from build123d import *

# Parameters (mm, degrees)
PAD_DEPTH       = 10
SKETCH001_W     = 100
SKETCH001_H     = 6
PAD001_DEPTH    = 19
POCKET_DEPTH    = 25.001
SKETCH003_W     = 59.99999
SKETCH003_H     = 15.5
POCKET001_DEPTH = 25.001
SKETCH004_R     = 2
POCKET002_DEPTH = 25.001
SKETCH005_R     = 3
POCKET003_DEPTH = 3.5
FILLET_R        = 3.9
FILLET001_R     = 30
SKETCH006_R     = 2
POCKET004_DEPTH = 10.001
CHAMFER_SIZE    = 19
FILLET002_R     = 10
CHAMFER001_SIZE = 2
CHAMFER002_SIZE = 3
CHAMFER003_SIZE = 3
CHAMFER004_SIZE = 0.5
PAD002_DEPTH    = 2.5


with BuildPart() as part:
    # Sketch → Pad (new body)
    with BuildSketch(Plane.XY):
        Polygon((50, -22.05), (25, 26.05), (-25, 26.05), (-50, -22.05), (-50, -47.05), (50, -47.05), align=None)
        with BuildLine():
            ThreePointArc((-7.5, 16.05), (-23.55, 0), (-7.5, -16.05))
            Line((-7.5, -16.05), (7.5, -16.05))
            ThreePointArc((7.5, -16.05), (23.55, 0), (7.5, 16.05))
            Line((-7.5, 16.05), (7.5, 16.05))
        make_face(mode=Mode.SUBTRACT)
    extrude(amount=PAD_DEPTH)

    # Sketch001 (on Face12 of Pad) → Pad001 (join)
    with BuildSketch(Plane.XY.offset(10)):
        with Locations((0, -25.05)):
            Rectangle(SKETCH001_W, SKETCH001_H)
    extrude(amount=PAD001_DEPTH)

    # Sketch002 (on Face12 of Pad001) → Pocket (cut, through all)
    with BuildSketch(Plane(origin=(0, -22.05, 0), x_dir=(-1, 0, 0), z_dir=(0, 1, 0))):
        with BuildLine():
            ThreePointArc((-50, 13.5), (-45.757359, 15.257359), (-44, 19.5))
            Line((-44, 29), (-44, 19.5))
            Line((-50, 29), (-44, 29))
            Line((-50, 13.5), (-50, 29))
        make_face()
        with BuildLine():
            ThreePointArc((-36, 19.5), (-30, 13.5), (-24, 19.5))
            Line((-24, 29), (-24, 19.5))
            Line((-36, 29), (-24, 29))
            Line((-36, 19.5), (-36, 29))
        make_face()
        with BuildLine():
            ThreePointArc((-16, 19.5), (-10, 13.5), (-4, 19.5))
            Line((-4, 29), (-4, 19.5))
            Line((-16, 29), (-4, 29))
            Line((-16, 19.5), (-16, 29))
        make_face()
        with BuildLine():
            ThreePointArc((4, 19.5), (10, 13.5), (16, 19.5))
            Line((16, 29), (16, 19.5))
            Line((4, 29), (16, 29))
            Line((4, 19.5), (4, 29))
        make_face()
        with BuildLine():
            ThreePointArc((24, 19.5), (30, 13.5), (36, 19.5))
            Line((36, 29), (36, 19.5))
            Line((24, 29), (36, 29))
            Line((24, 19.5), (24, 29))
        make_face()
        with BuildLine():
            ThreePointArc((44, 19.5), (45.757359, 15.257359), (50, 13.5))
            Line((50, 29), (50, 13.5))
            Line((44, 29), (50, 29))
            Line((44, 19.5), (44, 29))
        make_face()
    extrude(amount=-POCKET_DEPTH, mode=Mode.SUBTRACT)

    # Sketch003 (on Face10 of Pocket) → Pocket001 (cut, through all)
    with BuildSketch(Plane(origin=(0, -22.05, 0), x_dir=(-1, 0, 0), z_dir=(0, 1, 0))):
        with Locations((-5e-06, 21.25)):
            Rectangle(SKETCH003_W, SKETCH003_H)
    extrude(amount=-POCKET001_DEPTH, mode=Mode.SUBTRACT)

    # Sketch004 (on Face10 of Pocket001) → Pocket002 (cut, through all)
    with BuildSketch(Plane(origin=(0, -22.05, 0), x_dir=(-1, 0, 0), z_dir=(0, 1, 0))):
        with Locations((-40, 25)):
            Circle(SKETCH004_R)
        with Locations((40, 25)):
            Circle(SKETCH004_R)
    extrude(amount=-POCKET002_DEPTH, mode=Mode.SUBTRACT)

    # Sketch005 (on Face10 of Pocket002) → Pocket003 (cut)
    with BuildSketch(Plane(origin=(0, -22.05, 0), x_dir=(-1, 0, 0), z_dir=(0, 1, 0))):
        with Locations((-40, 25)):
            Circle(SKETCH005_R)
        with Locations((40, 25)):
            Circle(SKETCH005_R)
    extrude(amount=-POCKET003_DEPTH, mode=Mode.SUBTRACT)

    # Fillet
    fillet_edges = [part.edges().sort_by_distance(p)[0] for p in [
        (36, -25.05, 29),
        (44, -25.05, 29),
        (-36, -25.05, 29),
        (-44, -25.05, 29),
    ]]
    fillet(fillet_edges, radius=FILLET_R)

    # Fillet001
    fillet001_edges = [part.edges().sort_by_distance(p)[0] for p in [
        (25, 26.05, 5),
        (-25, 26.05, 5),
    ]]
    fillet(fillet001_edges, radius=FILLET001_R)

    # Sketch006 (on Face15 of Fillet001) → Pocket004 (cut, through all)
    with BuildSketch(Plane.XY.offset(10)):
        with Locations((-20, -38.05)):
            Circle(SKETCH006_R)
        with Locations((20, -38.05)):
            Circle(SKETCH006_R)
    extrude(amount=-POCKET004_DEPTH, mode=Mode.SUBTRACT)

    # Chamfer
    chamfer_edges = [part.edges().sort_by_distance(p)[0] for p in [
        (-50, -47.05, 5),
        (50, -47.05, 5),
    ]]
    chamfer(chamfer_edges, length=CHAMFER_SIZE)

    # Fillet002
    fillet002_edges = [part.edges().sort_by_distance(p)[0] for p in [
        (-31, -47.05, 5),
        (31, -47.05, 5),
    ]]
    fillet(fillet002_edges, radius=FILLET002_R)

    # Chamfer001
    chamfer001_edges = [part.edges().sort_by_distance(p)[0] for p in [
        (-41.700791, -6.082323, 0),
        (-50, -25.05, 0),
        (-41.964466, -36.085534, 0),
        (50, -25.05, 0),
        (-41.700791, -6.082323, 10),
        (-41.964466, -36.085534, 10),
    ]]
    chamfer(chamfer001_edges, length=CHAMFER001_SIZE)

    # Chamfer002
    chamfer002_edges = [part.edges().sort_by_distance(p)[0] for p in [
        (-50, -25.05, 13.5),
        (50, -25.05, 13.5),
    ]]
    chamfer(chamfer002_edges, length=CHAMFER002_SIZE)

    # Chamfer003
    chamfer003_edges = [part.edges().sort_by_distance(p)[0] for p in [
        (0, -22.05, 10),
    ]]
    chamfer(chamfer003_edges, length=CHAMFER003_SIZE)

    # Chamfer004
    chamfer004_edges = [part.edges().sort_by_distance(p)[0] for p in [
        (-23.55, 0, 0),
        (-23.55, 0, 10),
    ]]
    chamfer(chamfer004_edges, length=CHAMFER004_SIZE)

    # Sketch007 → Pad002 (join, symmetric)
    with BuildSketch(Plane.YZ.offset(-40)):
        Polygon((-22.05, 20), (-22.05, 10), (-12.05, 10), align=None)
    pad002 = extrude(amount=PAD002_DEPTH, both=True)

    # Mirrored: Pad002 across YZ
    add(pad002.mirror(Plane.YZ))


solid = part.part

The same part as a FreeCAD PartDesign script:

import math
import FreeCAD as App
import Part
import Sketcher

V = App.Vector


def edges_at(feature, points):
    """Names of the edges that pass closest to the given points."""
    edges = feature.Shape.Edges
    near = lambda p: min(range(len(edges)), key=lambda i: edges[i].distToShape(Part.Vertex(*p))[0])
    return sorted({f"Edge{near(p) + 1}" for p in points})

doc = App.newDocument("Part")
body = doc.addObject("PartDesign::Body", "Body")

# Sketch on XY plane
sketch1 = body.newObject("Sketcher::SketchObject", "Sketch")
sketch1.AttachmentSupport = (doc.getObject("XY_Plane"), [""])
sketch1.MapMode = "FlatFace"
sketch1.addGeometry([
    Part.LineSegment(V(50, -22, 0), V(25, 26, 0)),  # 0
    Part.LineSegment(V(25, 26, 0), V(-25, 26, 0)),  # 1
    Part.LineSegment(V(-25, 26, 0), V(-50, -22, 0)),  # 2
    Part.LineSegment(V(-50, -22, 0), V(-50, -47, 0)),  # 3
    Part.LineSegment(V(-50, -47, 0), V(50, -47, 0)),  # 4
    Part.LineSegment(V(50, -47, 0), V(50, -22, 0)),  # 5
    Part.ArcOfCircle(Part.Circle(V(-8, 0, 0), V(0, 0, 1), 16), math.radians(90), math.radians(270)),  # 6
    Part.LineSegment(V(-8, 16, 0), V(8, 16, 0)),  # 7
    Part.ArcOfCircle(Part.Circle(V(8, 0, 0), V(0, 0, 1), 16), math.radians(-90), math.radians(90)),  # 8
    Part.LineSegment(V(8, -16, 0), V(-8, -16, 0)),  # 9
], False)
sketch1.addConstraint([
    Sketcher.Constraint("Coincident", 0, 2, 1, 1),
    Sketcher.Constraint("Coincident", 1, 2, 2, 1),
    Sketcher.Constraint("Coincident", 2, 2, 3, 1),
    Sketcher.Constraint("Coincident", 3, 2, 4, 1),
    Sketcher.Constraint("Coincident", 4, 2, 5, 1),
    Sketcher.Constraint("Coincident", 5, 2, 0, 1),
    Sketcher.Constraint("Tangent", 6, 1, 7, 1),
    Sketcher.Constraint("Tangent", 7, 2, 8, 2),
    Sketcher.Constraint("Tangent", 8, 1, 9, 1),
    Sketcher.Constraint("Tangent", 9, 2, 6, 2),
    Sketcher.Constraint("Horizontal", 1),
    Sketcher.Constraint("Vertical", 3),
    Sketcher.Constraint("Horizontal", 4),
    Sketcher.Constraint("Vertical", 5),
    Sketcher.Constraint("Horizontal", 7),
    Sketcher.Constraint("Horizontal", 9),
    Sketcher.Constraint("Symmetric", 6, 3, 8, 3, -1, 1),
    Sketcher.Constraint("Symmetric", 2, 2, 5, 2, -2),
    Sketcher.Constraint("Equal", 0, 2),
    Sketcher.Constraint("DistanceX", 1, 2, 1, 1, 50.0),
    Sketcher.Constraint("DistanceX", 4, 1, 4, 2, 100.0),
    Sketcher.Constraint("DistanceX", 7, 1, 7, 2, 15.0),
    Sketcher.Constraint("DistanceY", 3, 2, 3, 1, 25.0),
    Sketcher.Constraint("Radius", 6, 16.05),
    Sketcher.Constraint("DistanceY", 6, 1, 1, 2, 10.0),
    Sketcher.Constraint("DistanceY", 5, 2, 8, 1, 6.0),
])
pad1 = body.newObject("PartDesign::Pad", "Pad")
pad1.Profile = sketch1
pad1.Length = 10

# Sketch on XY plane
sketch2 = body.newObject("Sketcher::SketchObject", "Sketch001")
sketch2.AttachmentSupport = (doc.getObject("XY_Plane"), [""])
sketch2.MapMode = "FlatFace"
sketch2.AttachmentOffset = App.Placement(V(0, 0, 10), App.Rotation())
sketch2.addGeometry([
    Part.LineSegment(V(-50, -22, 0), V(-50, -28, 0)),
    Part.LineSegment(V(-50, -28, 0), V(50, -28, 0)),
    Part.LineSegment(V(50, -28, 0), V(50, -22, 0)),
    Part.LineSegment(V(50, -22, 0), V(-50, -22, 0)),
], False)
sketch2.addConstraint([
    Sketcher.Constraint("Coincident", 0, 2, 1, 1),
    Sketcher.Constraint("Coincident", 1, 2, 2, 1),
    Sketcher.Constraint("Coincident", 2, 2, 3, 1),
    Sketcher.Constraint("Coincident", 3, 2, 0, 1),
    Sketcher.Constraint("Vertical", 0),
    Sketcher.Constraint("Horizontal", 1),
    Sketcher.Constraint("Vertical", 2),
    Sketcher.Constraint("Horizontal", 3),
    Sketcher.Constraint("DistanceX", 1, 1, 1, 2, 100.0),
    Sketcher.Constraint("DistanceY", 0, 2, 0, 1, 6.0),
    Sketcher.Constraint("DistanceX", 0, 2, -1, 1, 50.0),
    Sketcher.Constraint("DistanceY", 0, 2, -1, 1, 28.05),
])
pad2 = body.newObject("PartDesign::Pad", "Pad001")
pad2.Profile = sketch2
pad2.Length = 19

# Sketch on XZ plane
sketch3 = body.newObject("Sketcher::SketchObject", "Sketch002")
sketch3.AttachmentSupport = (doc.getObject("XZ_Plane"), [""])
sketch3.MapMode = "FlatFace"
sketch3.AttachmentOffset = App.Placement(V(0, 0, 22.05), App.Rotation())
sketch3.addGeometry([
    Part.ArcOfCircle(Part.Circle(V(50, 19, 0), V(0, 0, 1), 6), math.radians(180), math.radians(270)),  # 0
    Part.LineSegment(V(44, 20, 0), V(44, 29, 0)),  # 1
    Part.LineSegment(V(44, 29, 0), V(50, 29, 0)),  # 2
    Part.LineSegment(V(50, 29, 0), V(50, 14, 0)),  # 3
    Part.ArcOfCircle(Part.Circle(V(30, 20, 0), V(0, 0, 1), 6), math.radians(180), math.radians(360)),  # 4
    Part.LineSegment(V(24, 20, 0), V(24, 29, 0)),  # 5
    Part.LineSegment(V(24, 29, 0), V(36, 29, 0)),  # 6
    Part.LineSegment(V(36, 29, 0), V(36, 20, 0)),  # 7
    Part.ArcOfCircle(Part.Circle(V(10, 20, 0), V(0, 0, 1), 6), math.radians(180), math.radians(360)),  # 8
    Part.LineSegment(V(4, 20, 0), V(4, 29, 0)),  # 9
    Part.LineSegment(V(4, 29, 0), V(16, 29, 0)),  # 10
    Part.LineSegment(V(16, 29, 0), V(16, 20, 0)),  # 11
    Part.ArcOfCircle(Part.Circle(V(-10, 20, 0), V(0, 0, 1), 6), math.radians(180), math.radians(360)),  # 12
    Part.LineSegment(V(-16, 20, 0), V(-16, 29, 0)),  # 13
    Part.LineSegment(V(-16, 29, 0), V(-4, 29, 0)),  # 14
    Part.LineSegment(V(-4, 29, 0), V(-4, 20, 0)),  # 15
    Part.ArcOfCircle(Part.Circle(V(-30, 20, 0), V(0, 0, 1), 6), math.radians(180), math.radians(360)),  # 16
    Part.LineSegment(V(-36, 20, 0), V(-36, 29, 0)),  # 17
    Part.LineSegment(V(-36, 29, 0), V(-24, 29, 0)),  # 18
    Part.LineSegment(V(-24, 29, 0), V(-24, 20, 0)),  # 19
    Part.ArcOfCircle(Part.Circle(V(-50, 19, 0), V(0, 0, 1), 6), math.radians(-90), math.radians(0)),  # 20
    Part.LineSegment(V(-50, 14, 0), V(-50, 29, 0)),  # 21
    Part.LineSegment(V(-50, 29, 0), V(-44, 29, 0)),  # 22
    Part.LineSegment(V(-44, 29, 0), V(-44, 20, 0)),  # 23
], False)
sketch3.addConstraint([
    Sketcher.Constraint("Tangent", 0, 1, 1, 1),
    Sketcher.Constraint("Coincident", 1, 2, 2, 1),
    Sketcher.Constraint("Coincident", 2, 2, 3, 1),
    Sketcher.Constraint("Coincident", 3, 2, 0, 2),
    Sketcher.Constraint("Tangent", 4, 1, 5, 1),
    Sketcher.Constraint("Coincident", 5, 2, 6, 1),
    Sketcher.Constraint("Coincident", 6, 2, 7, 1),
    Sketcher.Constraint("Tangent", 7, 2, 4, 2),
    Sketcher.Constraint("Tangent", 8, 1, 9, 1),
    Sketcher.Constraint("Coincident", 9, 2, 10, 1),
    Sketcher.Constraint("Coincident", 10, 2, 11, 1),
    Sketcher.Constraint("Tangent", 11, 2, 8, 2),
    Sketcher.Constraint("Tangent", 12, 1, 13, 1),
    Sketcher.Constraint("Coincident", 13, 2, 14, 1),
    Sketcher.Constraint("Coincident", 14, 2, 15, 1),
    Sketcher.Constraint("Tangent", 15, 2, 12, 2),
    Sketcher.Constraint("Tangent", 16, 1, 17, 1),
    Sketcher.Constraint("Coincident", 17, 2, 18, 1),
    Sketcher.Constraint("Coincident", 18, 2, 19, 1),
    Sketcher.Constraint("Tangent", 19, 2, 16, 2),
    Sketcher.Constraint("Coincident", 20, 1, 21, 1),
    Sketcher.Constraint("Coincident", 21, 2, 22, 1),
    Sketcher.Constraint("Coincident", 22, 2, 23, 1),
    Sketcher.Constraint("Tangent", 23, 2, 20, 2),
    Sketcher.Constraint("Vertical", 1),
    Sketcher.Constraint("Horizontal", 2),
    Sketcher.Constraint("Vertical", 3),
    Sketcher.Constraint("Vertical", 5),
    Sketcher.Constraint("Horizontal", 6),
    Sketcher.Constraint("Vertical", 7),
    Sketcher.Constraint("Vertical", 9),
    Sketcher.Constraint("Horizontal", 10),
    Sketcher.Constraint("Vertical", 11),
    Sketcher.Constraint("Vertical", 13),
    Sketcher.Constraint("Horizontal", 14),
    Sketcher.Constraint("Vertical", 15),
    Sketcher.Constraint("Vertical", 17),
    Sketcher.Constraint("Horizontal", 18),
    Sketcher.Constraint("Vertical", 19),
    Sketcher.Constraint("Vertical", 21),
    Sketcher.Constraint("Horizontal", 22),
    Sketcher.Constraint("Vertical", 23),
    Sketcher.Constraint("Equal", 0, 4),
    Sketcher.Constraint("Equal", 4, 8),
    Sketcher.Constraint("Equal", 8, 12),
    Sketcher.Constraint("Equal", 12, 16),
    Sketcher.Constraint("Equal", 16, 20),
    Sketcher.Constraint("Symmetric", 8, 3, 12, 3, -2),
    Sketcher.Constraint("Symmetric", 4, 3, 16, 3, -2),
    Sketcher.Constraint("Symmetric", 0, 3, 20, 3, -2),
    Sketcher.Constraint("Symmetric", 2, 2, 21, 2, -2),
    Sketcher.Constraint("Horizontal", 0, 3, 4, 3),
    Sketcher.Constraint("Horizontal", 4, 3, 8, 3),
    Sketcher.Constraint("Horizontal", 2, 2, 5, 2),
    Sketcher.Constraint("Horizontal", 6, 2, 9, 2),
    Sketcher.Constraint("Horizontal", 10, 2, 13, 2),
    Sketcher.Constraint("Horizontal", 14, 2, 17, 2),
    Sketcher.Constraint("Vertical", 0, 3, 2, 2),
    Sketcher.Constraint("Radius", 0, 5.999999),
    Sketcher.Constraint("DistanceY", 1, 1, 1, 2, 9.5),
    Sketcher.Constraint("DistanceX", -1, 1, 0, 3, 49.999999),
    Sketcher.Constraint("DistanceX", -1, 1, 4, 3, 30.0),
    Sketcher.Constraint("DistanceX", -1, 1, 8, 3, 10.0),
    Sketcher.Constraint("DistanceY", -1, 1, 1, 2, 29.0),
])
pocket1 = body.newObject("PartDesign::Pocket", "Pocket")
pocket1.Profile = sketch3
pocket1.Type = "ThroughAll"
pocket1.Reversed = True

# Sketch on XZ plane
sketch4 = body.newObject("Sketcher::SketchObject", "Sketch003")
sketch4.AttachmentSupport = (doc.getObject("XZ_Plane"), [""])
sketch4.MapMode = "FlatFace"
sketch4.AttachmentOffset = App.Placement(V(0, 0, 22.05), App.Rotation())
sketch4.addGeometry([
    Part.LineSegment(V(30, 29, 0), V(30, 14, 0)),
    Part.LineSegment(V(30, 14, 0), V(-30, 14, 0)),
    Part.LineSegment(V(-30, 14, 0), V(-30, 29, 0)),
    Part.LineSegment(V(-30, 29, 0), V(30, 29, 0)),
], False)
sketch4.addConstraint([
    Sketcher.Constraint("Coincident", 0, 2, 1, 1),
    Sketcher.Constraint("Coincident", 1, 2, 2, 1),
    Sketcher.Constraint("Coincident", 2, 2, 3, 1),
    Sketcher.Constraint("Coincident", 3, 2, 0, 1),
    Sketcher.Constraint("Vertical", 0),
    Sketcher.Constraint("Horizontal", 1),
    Sketcher.Constraint("Vertical", 2),
    Sketcher.Constraint("Horizontal", 3),
    Sketcher.Constraint("DistanceY", 0, 2, 0, 1, 15.5),
    Sketcher.Constraint("DistanceX", -1, 1, 0, 2, 30.0),
    Sketcher.Constraint("DistanceY", -1, 1, 2, 2, 29.0),
    Sketcher.Constraint("DistanceX", 1, 2, 1, 1, 59.99999),
])
pocket2 = body.newObject("PartDesign::Pocket", "Pocket001")
pocket2.Profile = sketch4
pocket2.Type = "ThroughAll"
pocket2.Reversed = True

# Sketch on XZ plane
sketch5 = body.newObject("Sketcher::SketchObject", "Sketch004")
sketch5.AttachmentSupport = (doc.getObject("XZ_Plane"), [""])
sketch5.MapMode = "FlatFace"
sketch5.AttachmentOffset = App.Placement(V(0, 0, 22.05), App.Rotation())
sketch5.addGeometry([
    Part.Circle(V(40, 25, 0), V(0, 0, 1), 2),
    Part.Circle(V(-40, 25, 0), V(0, 0, 1), 2),
], False)
sketch5.addConstraint([
    Sketcher.Constraint("Equal", 0, 1),
    Sketcher.Constraint("Symmetric", 0, 3, 1, 3, -2),
    Sketcher.Constraint("Diameter", 0, 4.0),
    Sketcher.Constraint("DistanceX", -1, 1, 0, 3, 40.0),
    Sketcher.Constraint("DistanceY", -1, 1, 0, 3, 25.0),
])
pocket3 = body.newObject("PartDesign::Pocket", "Pocket002")
pocket3.Profile = sketch5
pocket3.Type = "ThroughAll"
pocket3.Reversed = True

# Sketch on XZ plane
sketch6 = body.newObject("Sketcher::SketchObject", "Sketch005")
sketch6.AttachmentSupport = (doc.getObject("XZ_Plane"), [""])
sketch6.MapMode = "FlatFace"
sketch6.AttachmentOffset = App.Placement(V(0, 0, 22.05), App.Rotation())
sketch6.addGeometry([
    Part.Circle(V(40, 25, 0), V(0, 0, 1), 3),
    Part.Circle(V(-40, 25, 0), V(0, 0, 1), 3),
], False)
sketch6.addConstraint([
    Sketcher.Constraint("Equal", 0, 1),
    Sketcher.Constraint("Symmetric", 0, 3, 1, 3, -2),
    Sketcher.Constraint("Diameter", 0, 6.0),
    Sketcher.Constraint("DistanceX", -1, 1, 0, 3, 40.0),
    Sketcher.Constraint("DistanceY", -1, 1, 0, 3, 25.0),
])
pocket4 = body.newObject("PartDesign::Pocket", "Pocket003")
pocket4.Profile = sketch6
pocket4.Length = 3.5
pocket4.Reversed = True
doc.recompute()

fillet = body.newObject("PartDesign::Fillet", "Fillet")
fillet.Base = (pocket4, edges_at(pocket4, [
    (36, -25.05, 29),
    (44, -25.05, 29),
    (-36, -25.05, 29),
    (-44, -25.05, 29),
]))
fillet.Radius = 3.9
doc.recompute()

fillet2 = body.newObject("PartDesign::Fillet", "Fillet001")
fillet2.Base = (fillet, edges_at(fillet, [(25, 26.05, 5), (-25, 26.05, 5)]))
fillet2.Radius = 30

# Sketch on XY plane
sketch7 = body.newObject("Sketcher::SketchObject", "Sketch006")
sketch7.AttachmentSupport = (doc.getObject("XY_Plane"), [""])
sketch7.MapMode = "FlatFace"
sketch7.AttachmentOffset = App.Placement(V(0, 0, 10), App.Rotation())
sketch7.addGeometry([
    Part.Circle(V(-20, -38, 0), V(0, 0, 1), 2),
    Part.Circle(V(20, -38, 0), V(0, 0, 1), 2),
], False)
sketch7.addConstraint([
    Sketcher.Constraint("Equal", 0, 1),
    Sketcher.Constraint("Symmetric", 0, 3, 1, 3, -2),
    Sketcher.Constraint("Diameter", 0, 4.0),
    Sketcher.Constraint("DistanceX", 0, 3, -1, 1, 20.0),
    Sketcher.Constraint("DistanceY", 0, 3, -1, 1, 38.05),
])
pocket5 = body.newObject("PartDesign::Pocket", "Pocket004")
pocket5.Profile = sketch7
pocket5.Type = "ThroughAll"
doc.recompute()

chamfer = body.newObject("PartDesign::Chamfer", "Chamfer")
chamfer.Base = (pocket5, edges_at(pocket5, [(-50, -47.05, 5), (50, -47.05, 5)]))
chamfer.Size = 19
doc.recompute()

fillet3 = body.newObject("PartDesign::Fillet", "Fillet002")
fillet3.Base = (chamfer, edges_at(chamfer, [(-31, -47.05, 5), (31, -47.05, 5)]))
fillet3.Radius = 10
doc.recompute()

chamfer2 = body.newObject("PartDesign::Chamfer", "Chamfer001")
chamfer2.Base = (fillet3, edges_at(fillet3, [
    (-41.701, -6.082, 0),
    (-50, -25.05, 0),
    (-41.964, -36.086, 0),
    (50, -25.05, 0),
    (-41.701, -6.082, 10),
    (-41.964, -36.086, 10),
]))
chamfer2.Size = 2
doc.recompute()

chamfer3 = body.newObject("PartDesign::Chamfer", "Chamfer002")
chamfer3.Base = (chamfer2, edges_at(chamfer2, [(-50, -25.05, 13.5), (50, -25.05, 13.5)]))
chamfer3.Size = 3
doc.recompute()

chamfer4 = body.newObject("PartDesign::Chamfer", "Chamfer003")
chamfer4.Base = (chamfer3, edges_at(chamfer3, [(0, -22.05, 10)]))
chamfer4.Size = 3
doc.recompute()

chamfer5 = body.newObject("PartDesign::Chamfer", "Chamfer004")
chamfer5.Base = (chamfer4, edges_at(chamfer4, [(-23.55, 0, 0), (-23.55, 0, 10)]))
chamfer5.Size = 0.5

# Sketch on YZ plane
sketch8 = body.newObject("Sketcher::SketchObject", "Sketch007")
sketch8.AttachmentSupport = (doc.getObject("YZ_Plane"), [""])
sketch8.MapMode = "FlatFace"
sketch8.AttachmentOffset = App.Placement(V(0, 0, -40), App.Rotation())
sketch8.addGeometry([
    Part.LineSegment(V(-22, 20, 0), V(-22, 10, 0)),
    Part.LineSegment(V(-22, 10, 0), V(-12, 10, 0)),
    Part.LineSegment(V(-12, 10, 0), V(-22, 20, 0)),
], False)
sketch8.addConstraint([
    Sketcher.Constraint("Coincident", 0, 2, 1, 1),
    Sketcher.Constraint("Coincident", 1, 2, 2, 1),
    Sketcher.Constraint("Coincident", 2, 2, 0, 1),
    Sketcher.Constraint("Vertical", 0),
    Sketcher.Constraint("Horizontal", 1),
    Sketcher.Constraint("Equal", 1, 0),
    Sketcher.Constraint("DistanceX", 1, 1, 1, 2, 10.0),
    Sketcher.Constraint("DistanceY", -1, 1, 0, 2, 10.0),
    Sketcher.Constraint("DistanceX", 0, 2, -1, 1, 22.05),
])
pad3 = body.newObject("PartDesign::Pad", "Pad002")
pad3.Profile = sketch8
pad3.Length = 5
pad3.Midplane = True
doc.recompute()

mirrored = body.newObject("PartDesign::Mirrored", "Mirrored")
mirrored.Originals = [pad3]
mirrored.MirrorPlane = (doc.getObject("YZ_Plane"), [""])
body.Tip = mirrored

doc.recompute()
